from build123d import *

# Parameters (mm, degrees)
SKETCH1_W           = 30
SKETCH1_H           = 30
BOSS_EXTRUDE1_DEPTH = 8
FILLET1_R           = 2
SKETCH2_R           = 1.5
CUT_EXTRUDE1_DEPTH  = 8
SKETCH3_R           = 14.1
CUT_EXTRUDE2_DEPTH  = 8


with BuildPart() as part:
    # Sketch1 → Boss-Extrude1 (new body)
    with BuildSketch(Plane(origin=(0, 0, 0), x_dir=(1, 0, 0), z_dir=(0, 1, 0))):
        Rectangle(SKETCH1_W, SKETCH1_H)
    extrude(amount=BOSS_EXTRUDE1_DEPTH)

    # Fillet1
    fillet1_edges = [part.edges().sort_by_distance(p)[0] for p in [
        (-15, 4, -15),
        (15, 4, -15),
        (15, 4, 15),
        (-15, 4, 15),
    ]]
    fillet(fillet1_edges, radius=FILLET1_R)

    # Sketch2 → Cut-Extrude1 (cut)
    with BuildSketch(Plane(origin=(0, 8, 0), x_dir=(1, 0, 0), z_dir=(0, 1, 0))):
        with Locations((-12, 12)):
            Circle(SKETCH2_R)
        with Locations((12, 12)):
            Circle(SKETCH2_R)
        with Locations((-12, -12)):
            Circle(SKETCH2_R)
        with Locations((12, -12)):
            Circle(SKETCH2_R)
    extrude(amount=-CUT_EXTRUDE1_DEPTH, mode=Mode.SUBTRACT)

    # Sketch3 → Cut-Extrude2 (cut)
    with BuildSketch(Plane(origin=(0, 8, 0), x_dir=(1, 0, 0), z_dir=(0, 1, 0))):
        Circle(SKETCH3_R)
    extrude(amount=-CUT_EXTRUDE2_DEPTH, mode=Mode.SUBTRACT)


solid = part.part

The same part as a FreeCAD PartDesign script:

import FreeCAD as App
import Part
import Sketcher
from FreeCAD import Vector
Q = App.Units.Quantity


def edges_at(feature, points):
    """Names of the edges that pass closest to the given points."""
    edges = feature.Shape.Edges
    near = lambda p: min(range(len(edges)), key=lambda i: edges[i].distToShape(Part.Vertex(*p))[0])
    return sorted({f"Edge{near(p) + 1}" for p in points})


def add_polygon(sketch, points):
    """Adds a closed chain of lines whose ends are joined by coincident constraints."""
    first, n = sketch.GeometryCount, len(points)
    for a, b in zip(points, points[1:] + points[:1]):
        sketch.addGeometry(Part.LineSegment(App.Vector(*a, 0), App.Vector(*b, 0)), False)
    for i in range(n):
        sketch.addConstraint(Sketcher.Constraint("Coincident", first + i, 2, first + (i + 1) % n, 1))

doc = App.newDocument("Part")
body = doc.addObject("PartDesign::Body", "Body")

# Sketch on XZ plane
sketch1 = body.newObject("Sketcher::SketchObject", "Sketch")
sketch1.AttachmentSupport = (doc.getObject("XZ_Plane"), [""])
sketch1.MapMode = "FlatFace"
add_polygon(sketch1, [(-15, -15), (-15, 15), (15, 15), (15, -15)])  # lines 0-3
sketch1.addConstraint(Sketcher.Constraint("Vertical", 0))
sketch1.addConstraint(Sketcher.Constraint("Horizontal", 1))
sketch1.addConstraint(Sketcher.Constraint("Vertical", 2))
sketch1.addConstraint(Sketcher.Constraint("Horizontal", 3))
sketch1.addConstraint(Sketcher.Constraint("Symmetric", 0, 2, 2, 2, -1, 1))
sketch1.addConstraint(Sketcher.Constraint("Equal", 3, 0))
sketch1.addConstraint(Sketcher.Constraint("DistanceX", 1, 1, 1, 2, Q("30 mm")))
pad1 = body.newObject("PartDesign::Pad", "Pad")
pad1.Profile = sketch1
pad1.Length = 8
pad1.Reversed = True
doc.recompute()

fillet = body.newObject("PartDesign::Fillet", "Fillet")
fillet.Base = (pad1, edges_at(pad1, [
    (-15, 4, -15),
    (15, 4, -15),
    (15, 4, 15),
    (-15, 4, 15),
]))
fillet.Radius = 2

# Sketch on XZ plane
sketch2 = body.newObject("Sketcher::SketchObject", "Sketch001")
sketch2.AttachmentSupport = (doc.getObject("XZ_Plane"), [""])
sketch2.MapMode = "FlatFace"
sketch2.AttachmentOffset = App.Placement(Vector(0, 0, -8), App.Rotation())
sketch2.addGeometry(Part.Circle(Vector(-12, -12, 0), Vector(0, 0, 1), 1.5), False)
sketch2.addGeometry(Part.Circle(Vector(12, -12, 0), Vector(0, 0, 1), 1.5), False)
sketch2.addGeometry(Part.Circle(Vector(-12, 12, 0), Vector(0, 0, 1), 1.5), False)
sketch2.addGeometry(Part.Circle(Vector(12, 12, 0), Vector(0, 0, 1), 1.5), False)
sketch2.addConstraint(Sketcher.Constraint("Equal", 0, 1))
sketch2.addConstraint(Sketcher.Constraint("Equal", 1, 2))
sketch2.addConstraint(Sketcher.Constraint("Equal", 2, 3))
sketch2.addConstraint(Sketcher.Constraint("Symmetric", 1, 3, 2, 3, -1, 1))
sketch2.addConstraint(Sketcher.Constraint("Symmetric", 0, 3, 3, 3, -1, 1))
sketch2.addConstraint(Sketcher.Constraint("Symmetric", 0, 3, 1, 3, -2))
sketch2.addConstraint(Sketcher.Constraint("Diameter", 0, Q("3 mm")))
sketch2.addConstraint(Sketcher.Constraint("DistanceX", 0, 3, -1, 1, Q("12 mm")))
sketch2.addConstraint(Sketcher.Constraint("DistanceY", 0, 3, -1, 1, Q("12 mm")))
pocket1 = body.newObject("PartDesign::Pocket", "Pocket")
pocket1.Profile = sketch2
pocket1.Length = 8
pocket1.Reversed = True

# Sketch on XZ plane
sketch3 = body.newObject("Sketcher::SketchObject", "Sketch002")
sketch3.AttachmentSupport = (doc.getObject("XZ_Plane"), [""])
sketch3.MapMode = "FlatFace"
sketch3.AttachmentOffset = App.Placement(Vector(0, 0, -8), App.Rotation())
sketch3.addGeometry(Part.Circle(Vector(0, 0, 0), Vector(0, 0, 1), 14), False)
sketch3.addConstraint(Sketcher.Constraint("Coincident", 0, 3, -1, 1))
sketch3.addConstraint(Sketcher.Constraint("Diameter", 0, Q("28.2 mm")))
pocket2 = body.newObject("PartDesign::Pocket", "Pocket001")
pocket2.Profile = sketch3
pocket2.Length = 8
pocket2.Reversed = True

doc.recompute()
